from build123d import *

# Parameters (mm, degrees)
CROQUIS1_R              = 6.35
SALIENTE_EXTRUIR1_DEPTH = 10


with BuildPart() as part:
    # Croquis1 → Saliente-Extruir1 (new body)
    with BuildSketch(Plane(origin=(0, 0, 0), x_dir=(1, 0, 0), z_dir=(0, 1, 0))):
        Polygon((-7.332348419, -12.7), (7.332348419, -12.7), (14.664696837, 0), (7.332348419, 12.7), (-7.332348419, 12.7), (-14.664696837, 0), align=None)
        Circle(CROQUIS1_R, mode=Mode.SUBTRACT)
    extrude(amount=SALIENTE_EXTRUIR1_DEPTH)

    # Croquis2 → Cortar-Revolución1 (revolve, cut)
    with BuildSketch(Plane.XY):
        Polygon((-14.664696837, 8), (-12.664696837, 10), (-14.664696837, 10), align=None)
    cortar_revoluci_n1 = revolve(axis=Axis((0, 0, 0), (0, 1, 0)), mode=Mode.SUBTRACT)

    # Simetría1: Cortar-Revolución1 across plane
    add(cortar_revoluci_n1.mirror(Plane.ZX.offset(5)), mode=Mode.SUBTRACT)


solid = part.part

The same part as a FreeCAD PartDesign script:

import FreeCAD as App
import Part
import Sketcher

V = App.Vector
Q = App.Units.Quantity


def add_polygon(sketch, points):
    """Adds a closed chain of lines whose ends are joined by coincident constraints."""
    first, n = sketch.GeometryCount, len(points)
    for a, b in zip(points, points[1:] + points[:1]):
        sketch.addGeometry(Part.LineSegment(App.Vector(*a, 0), App.Vector(*b, 0)), False)
    for i in range(n):
        sketch.addConstraint(Sketcher.Constraint("Coincident", first + i, 2, first + (i + 1) % n, 1))

doc = App.newDocument("Part")
body = doc.addObject("PartDesign::Body", "Body")

# Sketch on XZ plane
sketch1 = body.newObject("Sketcher::SketchObject", "Sketch")
sketch1.AttachmentSupport = (doc.getObject("XZ_Plane"), [""])
sketch1.MapMode = "FlatFace"
add_polygon(sketch1, [(-7, 13), (7, 13), (15, 0), (7, -13), (-7, -13), (-15, 0)])  # lines 0-5
sketch1.addGeometry(Part.Circle(V(0, 0, 0), V(0, 0, 1), 6), False)  # 6
sketch1.addConstraint([
    Sketcher.Constraint("Horizontal", 0),
    Sketcher.Constraint("Horizontal", 3),
    Sketcher.Constraint("Coincident", 6, 3, -1, 1),
    Sketcher.Constraint("Symmetric", 0, 2, 3, 2, -1, 1),
    Sketcher.Constraint("Symmetric", 1, 2, 4, 2, -1, 1),
    Sketcher.Constraint("PointOnObject", 1, 2, -1),
    Sketcher.Constraint("Parallel", 2, 5),
    Sketcher.Constraint("Vertical", 0, 2, 2, 2),
    Sketcher.Constraint("Diameter", 6, Q("12.7 mm")),
    Sketcher.Constraint("Angle", 1, Q("-60 deg")),
    Sketcher.Constraint("DistanceY", -1, 1, 0, 2, Q("12.7 mm")),
    Sketcher.Constraint("DistanceX", 0, 1, 0, 2, Q("14.664697 mm")),
])
pad1 = body.newObject("PartDesign::Pad", "Pad")
pad1.Profile = sketch1
pad1.Length = 10
pad1.Reversed = True

# Sketch on XY plane
sketch2 = body.newObject("Sketcher::SketchObject", "Sketch001")
sketch2.AttachmentSupport = (doc.getObject("XY_Plane"), [""])
sketch2.MapMode = "FlatFace"
add_polygon(sketch2, [(-14.7, 8), (-12.7, 10), (-14.7, 10)])  # lines 0-2
sketch2.addConstraint([
    Sketcher.Constraint("Horizontal", 1),
    Sketcher.Constraint("Vertical", 2),
    Sketcher.Constraint("Equal", 1, 2),
    Sketcher.Constraint("DistanceX", 1, 2, 1, 1, Q("2 mm")),
    Sketcher.Constraint("DistanceY", -1, 1, 0, 2, Q("10 mm")),
    Sketcher.Constraint("DistanceX", 0, 2, -1, 1, Q("12.664697 mm")),
])
groove = body.newObject("PartDesign::Groove", "Groove")
groove.Profile = sketch2
groove.ReferenceAxis = (sketch2, ["V_Axis"])
groove.Angle = 360
doc.recompute()

datumplane = body.newObject("PartDesign::Plane", "DatumPlane")
datumplane.AttachmentSupport = (doc.getObject("XZ_Plane"), [""])
datumplane.MapMode = "FlatFace"
datumplane.AttachmentOffset = App.Placement(V(0, 0, -5), App.Rotation())
mirrored = body.newObject("PartDesign::Mirrored", "Mirrored")
mirrored.Originals = [groove]
mirrored.MirrorPlane = (datumplane, [""])
body.Tip = mirrored

doc.recompute()
